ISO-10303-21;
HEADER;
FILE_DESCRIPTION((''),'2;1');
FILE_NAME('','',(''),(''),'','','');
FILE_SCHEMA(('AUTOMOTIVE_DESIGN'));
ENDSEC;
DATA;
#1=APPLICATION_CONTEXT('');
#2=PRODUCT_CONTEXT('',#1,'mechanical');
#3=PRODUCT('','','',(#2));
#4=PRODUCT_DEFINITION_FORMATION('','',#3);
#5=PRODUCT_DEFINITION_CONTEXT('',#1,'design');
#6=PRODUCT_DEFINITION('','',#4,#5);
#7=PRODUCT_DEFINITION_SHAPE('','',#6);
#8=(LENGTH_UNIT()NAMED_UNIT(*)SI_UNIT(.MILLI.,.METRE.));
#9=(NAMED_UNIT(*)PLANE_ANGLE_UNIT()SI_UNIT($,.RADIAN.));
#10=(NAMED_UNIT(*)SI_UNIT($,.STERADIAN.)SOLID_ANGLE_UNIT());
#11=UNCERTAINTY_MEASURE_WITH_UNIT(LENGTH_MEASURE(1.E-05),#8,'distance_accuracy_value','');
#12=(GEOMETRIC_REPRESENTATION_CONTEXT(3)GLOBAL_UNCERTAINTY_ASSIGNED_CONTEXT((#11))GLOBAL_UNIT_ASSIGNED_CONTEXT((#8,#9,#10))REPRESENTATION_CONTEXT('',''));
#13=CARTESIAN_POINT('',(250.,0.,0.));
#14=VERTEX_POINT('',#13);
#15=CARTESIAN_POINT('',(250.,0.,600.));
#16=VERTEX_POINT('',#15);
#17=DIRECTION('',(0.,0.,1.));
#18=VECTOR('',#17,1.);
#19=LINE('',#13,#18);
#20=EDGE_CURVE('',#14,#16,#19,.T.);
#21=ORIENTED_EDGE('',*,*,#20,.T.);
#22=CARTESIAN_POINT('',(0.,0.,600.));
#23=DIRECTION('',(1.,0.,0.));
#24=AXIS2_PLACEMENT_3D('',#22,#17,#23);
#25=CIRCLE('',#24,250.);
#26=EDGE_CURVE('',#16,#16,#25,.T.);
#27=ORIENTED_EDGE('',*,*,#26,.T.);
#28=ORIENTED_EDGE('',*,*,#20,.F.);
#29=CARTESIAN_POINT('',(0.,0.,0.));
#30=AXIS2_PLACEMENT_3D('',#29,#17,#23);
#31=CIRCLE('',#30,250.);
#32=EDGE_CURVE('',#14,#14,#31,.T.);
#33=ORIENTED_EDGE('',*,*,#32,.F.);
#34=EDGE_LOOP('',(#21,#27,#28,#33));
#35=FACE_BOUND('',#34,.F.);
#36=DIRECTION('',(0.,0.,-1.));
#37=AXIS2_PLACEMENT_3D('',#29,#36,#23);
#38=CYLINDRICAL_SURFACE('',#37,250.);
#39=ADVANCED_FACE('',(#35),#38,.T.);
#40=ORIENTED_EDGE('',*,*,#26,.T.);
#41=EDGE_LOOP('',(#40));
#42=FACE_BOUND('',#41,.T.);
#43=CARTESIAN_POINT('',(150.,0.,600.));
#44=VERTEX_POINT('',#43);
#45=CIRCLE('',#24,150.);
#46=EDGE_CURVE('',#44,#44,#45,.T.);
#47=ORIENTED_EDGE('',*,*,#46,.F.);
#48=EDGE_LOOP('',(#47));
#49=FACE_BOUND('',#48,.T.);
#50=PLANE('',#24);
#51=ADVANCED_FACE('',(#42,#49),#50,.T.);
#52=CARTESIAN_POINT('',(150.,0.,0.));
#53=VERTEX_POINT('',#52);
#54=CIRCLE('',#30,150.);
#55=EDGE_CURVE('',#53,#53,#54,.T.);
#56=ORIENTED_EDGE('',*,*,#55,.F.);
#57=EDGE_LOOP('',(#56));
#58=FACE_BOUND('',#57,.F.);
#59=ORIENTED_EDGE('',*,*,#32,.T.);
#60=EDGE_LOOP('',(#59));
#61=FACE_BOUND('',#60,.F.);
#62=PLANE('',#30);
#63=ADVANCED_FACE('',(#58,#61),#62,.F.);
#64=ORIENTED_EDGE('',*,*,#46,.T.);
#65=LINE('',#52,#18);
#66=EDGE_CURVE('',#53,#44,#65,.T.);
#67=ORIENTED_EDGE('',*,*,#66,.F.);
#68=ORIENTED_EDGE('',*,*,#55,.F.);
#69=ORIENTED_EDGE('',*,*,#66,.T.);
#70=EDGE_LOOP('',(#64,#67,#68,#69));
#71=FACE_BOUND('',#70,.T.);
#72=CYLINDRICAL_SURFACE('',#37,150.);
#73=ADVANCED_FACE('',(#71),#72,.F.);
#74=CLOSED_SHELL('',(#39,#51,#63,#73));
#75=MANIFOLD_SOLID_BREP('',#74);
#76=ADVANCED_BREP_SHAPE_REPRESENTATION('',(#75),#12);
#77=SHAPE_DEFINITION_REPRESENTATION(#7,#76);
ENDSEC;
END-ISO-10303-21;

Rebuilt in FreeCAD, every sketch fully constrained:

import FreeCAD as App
import Part
import Sketcher

doc = App.newDocument("Part")
params = doc.addObject("Spreadsheet::Sheet", "Params")
for row, (alias, value) in enumerate([
    ("sketch1_diameter", "500 mm"),
    ("pad1_length", "600 mm"),
    ("sketch2_diameter", "300 mm"),
    ("pocket1_length", "600 mm"),
], start=1):
    params.set(f"A{row}", alias)
    params.set(f"B{row}", "=" + value)
    params.setAlias(f"B{row}", alias)

body = doc.addObject("PartDesign::Body", "Body")

# Sketch on XY plane
sketch1 = body.newObject("Sketcher::SketchObject", "Sketch")
sketch1.AttachmentSupport = (doc.getObject("XY_Plane"), [""])
sketch1.MapMode = "FlatFace"
sketch1.addGeometry(Part.Circle(App.Vector(0, 0, 0), App.Vector(0, 0, 1), 250), False)
sketch1.addConstraint([
    Sketcher.Constraint("Coincident", 0, 3, -1, 1),
    Sketcher.Constraint("Diameter", 0, 500.0),
])
sketch1.setExpression("Constraints[1]", "Params.sketch1_diameter")
pad1 = body.newObject("PartDesign::Pad", "Pad")
pad1.Profile = sketch1
pad1.setExpression("Length", "Params.pad1_length")

# Sketch on XY plane
sketch2 = body.newObject("Sketcher::SketchObject", "Sketch001")
sketch2.AttachmentSupport = (doc.getObject("XY_Plane"), [""])
sketch2.MapMode = "FlatFace"
sketch2.addGeometry(Part.Circle(App.Vector(0, 0, 0), App.Vector(0, 0, 1), 150), False)
sketch2.addConstraint([
    Sketcher.Constraint("Coincident", 0, 3, -1, 1),
    Sketcher.Constraint("Diameter", 0, 300.0),
])
sketch2.setExpression("Constraints[1]", "Params.sketch2_diameter")
pocket1 = body.newObject("PartDesign::Pocket", "Pocket")
pocket1.Profile = sketch2
pocket1.setExpression("Length", "Params.pocket1_length")
pocket1.Reversed = True

doc.recompute()
